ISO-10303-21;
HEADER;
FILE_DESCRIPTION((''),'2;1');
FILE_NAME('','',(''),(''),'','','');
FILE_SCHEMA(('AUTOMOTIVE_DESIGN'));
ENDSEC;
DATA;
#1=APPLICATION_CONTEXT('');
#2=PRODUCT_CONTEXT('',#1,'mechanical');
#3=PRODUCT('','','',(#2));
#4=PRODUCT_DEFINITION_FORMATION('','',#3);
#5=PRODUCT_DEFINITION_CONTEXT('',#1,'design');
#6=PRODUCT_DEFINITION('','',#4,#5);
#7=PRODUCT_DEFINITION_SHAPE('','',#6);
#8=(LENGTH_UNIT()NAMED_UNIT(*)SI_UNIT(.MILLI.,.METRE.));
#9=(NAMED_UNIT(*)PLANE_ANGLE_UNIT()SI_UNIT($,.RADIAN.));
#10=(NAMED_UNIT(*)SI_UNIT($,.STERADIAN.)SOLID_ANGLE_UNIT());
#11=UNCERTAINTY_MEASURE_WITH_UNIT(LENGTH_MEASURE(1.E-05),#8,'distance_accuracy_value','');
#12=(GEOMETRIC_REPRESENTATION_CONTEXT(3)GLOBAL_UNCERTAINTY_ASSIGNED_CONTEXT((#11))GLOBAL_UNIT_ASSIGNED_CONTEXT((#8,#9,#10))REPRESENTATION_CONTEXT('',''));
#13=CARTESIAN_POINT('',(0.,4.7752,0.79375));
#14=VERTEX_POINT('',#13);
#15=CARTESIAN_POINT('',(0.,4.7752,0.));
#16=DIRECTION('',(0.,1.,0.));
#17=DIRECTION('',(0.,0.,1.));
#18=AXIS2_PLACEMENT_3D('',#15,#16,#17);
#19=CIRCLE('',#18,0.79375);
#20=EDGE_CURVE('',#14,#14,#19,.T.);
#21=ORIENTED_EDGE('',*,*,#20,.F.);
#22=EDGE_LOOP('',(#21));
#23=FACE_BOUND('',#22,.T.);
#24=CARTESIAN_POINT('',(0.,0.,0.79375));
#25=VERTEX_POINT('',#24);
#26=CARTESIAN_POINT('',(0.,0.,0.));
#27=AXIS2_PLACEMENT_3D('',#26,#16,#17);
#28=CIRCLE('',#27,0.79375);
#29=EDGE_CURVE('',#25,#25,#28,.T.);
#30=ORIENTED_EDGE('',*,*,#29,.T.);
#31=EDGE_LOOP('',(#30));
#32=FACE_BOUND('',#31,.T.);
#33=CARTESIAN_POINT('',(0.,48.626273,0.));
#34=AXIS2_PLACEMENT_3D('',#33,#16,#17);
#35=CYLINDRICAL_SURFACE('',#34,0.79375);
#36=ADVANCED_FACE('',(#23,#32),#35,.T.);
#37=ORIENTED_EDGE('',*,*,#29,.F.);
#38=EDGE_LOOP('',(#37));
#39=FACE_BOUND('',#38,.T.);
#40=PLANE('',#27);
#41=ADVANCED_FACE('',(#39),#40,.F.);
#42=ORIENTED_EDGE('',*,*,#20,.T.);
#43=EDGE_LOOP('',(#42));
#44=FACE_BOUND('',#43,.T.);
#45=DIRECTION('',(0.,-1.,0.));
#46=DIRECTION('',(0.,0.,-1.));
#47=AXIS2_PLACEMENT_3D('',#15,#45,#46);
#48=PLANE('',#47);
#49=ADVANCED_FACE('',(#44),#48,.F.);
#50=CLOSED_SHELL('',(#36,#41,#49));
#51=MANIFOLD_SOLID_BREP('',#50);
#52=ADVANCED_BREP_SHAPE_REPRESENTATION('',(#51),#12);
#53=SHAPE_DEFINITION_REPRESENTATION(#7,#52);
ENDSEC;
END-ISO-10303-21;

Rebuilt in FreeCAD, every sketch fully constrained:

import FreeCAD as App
import Part
import Sketcher
from FreeCAD import Vector
Q = App.Units.Quantity


def add_polygon(sketch, points):
    """Adds a closed chain of lines whose ends are joined by coincident constraints."""
    first, n = sketch.GeometryCount, len(points)
    for a, b in zip(points, points[1:] + points[:1]):
        sketch.addGeometry(Part.LineSegment(App.Vector(*a, 0), App.Vector(*b, 0)), False)
    for i in range(n):
        sketch.addConstraint(Sketcher.Constraint("Coincident", first + i, 2, first + (i + 1) % n, 1))

doc = App.newDocument("Part")
body = doc.addObject("PartDesign::Body", "Body")

# Sketch on YZ plane
sketch1 = body.newObject("Sketcher::SketchObject", "Sketch")
sketch1.AttachmentSupport = (doc.getObject("YZ_Plane"), [""])
sketch1.MapMode = "FlatFace"
add_polygon(sketch1, [(4.8, 0), (0, 0), (0, -0.8), (4.8, -0.8)])  # lines 0-3
sketch1.addConstraint(Sketcher.Constraint("Horizontal", 0))
sketch1.addConstraint(Sketcher.Constraint("Vertical", 1))
sketch1.addConstraint(Sketcher.Constraint("Horizontal", 2))
sketch1.addConstraint(Sketcher.Constraint("Vertical", 3))
sketch1.addConstraint(Sketcher.Constraint("Coincident", 0, 2, -1, 1))
sketch1.addConstraint(Sketcher.Constraint("DistanceX", 0, 2, 0, 1, Q("0.188 in")))
sketch1.addConstraint(Sketcher.Constraint("DistanceY", 1, 2, 1, 1, Q("0.03125 in")))
revolution = body.newObject("PartDesign::Revolution", "Revolution")
revolution.Profile = sketch1
revolution.ReferenceAxis = (sketch1, ["H_Axis"])
revolution.Angle = 360

doc.recompute()
